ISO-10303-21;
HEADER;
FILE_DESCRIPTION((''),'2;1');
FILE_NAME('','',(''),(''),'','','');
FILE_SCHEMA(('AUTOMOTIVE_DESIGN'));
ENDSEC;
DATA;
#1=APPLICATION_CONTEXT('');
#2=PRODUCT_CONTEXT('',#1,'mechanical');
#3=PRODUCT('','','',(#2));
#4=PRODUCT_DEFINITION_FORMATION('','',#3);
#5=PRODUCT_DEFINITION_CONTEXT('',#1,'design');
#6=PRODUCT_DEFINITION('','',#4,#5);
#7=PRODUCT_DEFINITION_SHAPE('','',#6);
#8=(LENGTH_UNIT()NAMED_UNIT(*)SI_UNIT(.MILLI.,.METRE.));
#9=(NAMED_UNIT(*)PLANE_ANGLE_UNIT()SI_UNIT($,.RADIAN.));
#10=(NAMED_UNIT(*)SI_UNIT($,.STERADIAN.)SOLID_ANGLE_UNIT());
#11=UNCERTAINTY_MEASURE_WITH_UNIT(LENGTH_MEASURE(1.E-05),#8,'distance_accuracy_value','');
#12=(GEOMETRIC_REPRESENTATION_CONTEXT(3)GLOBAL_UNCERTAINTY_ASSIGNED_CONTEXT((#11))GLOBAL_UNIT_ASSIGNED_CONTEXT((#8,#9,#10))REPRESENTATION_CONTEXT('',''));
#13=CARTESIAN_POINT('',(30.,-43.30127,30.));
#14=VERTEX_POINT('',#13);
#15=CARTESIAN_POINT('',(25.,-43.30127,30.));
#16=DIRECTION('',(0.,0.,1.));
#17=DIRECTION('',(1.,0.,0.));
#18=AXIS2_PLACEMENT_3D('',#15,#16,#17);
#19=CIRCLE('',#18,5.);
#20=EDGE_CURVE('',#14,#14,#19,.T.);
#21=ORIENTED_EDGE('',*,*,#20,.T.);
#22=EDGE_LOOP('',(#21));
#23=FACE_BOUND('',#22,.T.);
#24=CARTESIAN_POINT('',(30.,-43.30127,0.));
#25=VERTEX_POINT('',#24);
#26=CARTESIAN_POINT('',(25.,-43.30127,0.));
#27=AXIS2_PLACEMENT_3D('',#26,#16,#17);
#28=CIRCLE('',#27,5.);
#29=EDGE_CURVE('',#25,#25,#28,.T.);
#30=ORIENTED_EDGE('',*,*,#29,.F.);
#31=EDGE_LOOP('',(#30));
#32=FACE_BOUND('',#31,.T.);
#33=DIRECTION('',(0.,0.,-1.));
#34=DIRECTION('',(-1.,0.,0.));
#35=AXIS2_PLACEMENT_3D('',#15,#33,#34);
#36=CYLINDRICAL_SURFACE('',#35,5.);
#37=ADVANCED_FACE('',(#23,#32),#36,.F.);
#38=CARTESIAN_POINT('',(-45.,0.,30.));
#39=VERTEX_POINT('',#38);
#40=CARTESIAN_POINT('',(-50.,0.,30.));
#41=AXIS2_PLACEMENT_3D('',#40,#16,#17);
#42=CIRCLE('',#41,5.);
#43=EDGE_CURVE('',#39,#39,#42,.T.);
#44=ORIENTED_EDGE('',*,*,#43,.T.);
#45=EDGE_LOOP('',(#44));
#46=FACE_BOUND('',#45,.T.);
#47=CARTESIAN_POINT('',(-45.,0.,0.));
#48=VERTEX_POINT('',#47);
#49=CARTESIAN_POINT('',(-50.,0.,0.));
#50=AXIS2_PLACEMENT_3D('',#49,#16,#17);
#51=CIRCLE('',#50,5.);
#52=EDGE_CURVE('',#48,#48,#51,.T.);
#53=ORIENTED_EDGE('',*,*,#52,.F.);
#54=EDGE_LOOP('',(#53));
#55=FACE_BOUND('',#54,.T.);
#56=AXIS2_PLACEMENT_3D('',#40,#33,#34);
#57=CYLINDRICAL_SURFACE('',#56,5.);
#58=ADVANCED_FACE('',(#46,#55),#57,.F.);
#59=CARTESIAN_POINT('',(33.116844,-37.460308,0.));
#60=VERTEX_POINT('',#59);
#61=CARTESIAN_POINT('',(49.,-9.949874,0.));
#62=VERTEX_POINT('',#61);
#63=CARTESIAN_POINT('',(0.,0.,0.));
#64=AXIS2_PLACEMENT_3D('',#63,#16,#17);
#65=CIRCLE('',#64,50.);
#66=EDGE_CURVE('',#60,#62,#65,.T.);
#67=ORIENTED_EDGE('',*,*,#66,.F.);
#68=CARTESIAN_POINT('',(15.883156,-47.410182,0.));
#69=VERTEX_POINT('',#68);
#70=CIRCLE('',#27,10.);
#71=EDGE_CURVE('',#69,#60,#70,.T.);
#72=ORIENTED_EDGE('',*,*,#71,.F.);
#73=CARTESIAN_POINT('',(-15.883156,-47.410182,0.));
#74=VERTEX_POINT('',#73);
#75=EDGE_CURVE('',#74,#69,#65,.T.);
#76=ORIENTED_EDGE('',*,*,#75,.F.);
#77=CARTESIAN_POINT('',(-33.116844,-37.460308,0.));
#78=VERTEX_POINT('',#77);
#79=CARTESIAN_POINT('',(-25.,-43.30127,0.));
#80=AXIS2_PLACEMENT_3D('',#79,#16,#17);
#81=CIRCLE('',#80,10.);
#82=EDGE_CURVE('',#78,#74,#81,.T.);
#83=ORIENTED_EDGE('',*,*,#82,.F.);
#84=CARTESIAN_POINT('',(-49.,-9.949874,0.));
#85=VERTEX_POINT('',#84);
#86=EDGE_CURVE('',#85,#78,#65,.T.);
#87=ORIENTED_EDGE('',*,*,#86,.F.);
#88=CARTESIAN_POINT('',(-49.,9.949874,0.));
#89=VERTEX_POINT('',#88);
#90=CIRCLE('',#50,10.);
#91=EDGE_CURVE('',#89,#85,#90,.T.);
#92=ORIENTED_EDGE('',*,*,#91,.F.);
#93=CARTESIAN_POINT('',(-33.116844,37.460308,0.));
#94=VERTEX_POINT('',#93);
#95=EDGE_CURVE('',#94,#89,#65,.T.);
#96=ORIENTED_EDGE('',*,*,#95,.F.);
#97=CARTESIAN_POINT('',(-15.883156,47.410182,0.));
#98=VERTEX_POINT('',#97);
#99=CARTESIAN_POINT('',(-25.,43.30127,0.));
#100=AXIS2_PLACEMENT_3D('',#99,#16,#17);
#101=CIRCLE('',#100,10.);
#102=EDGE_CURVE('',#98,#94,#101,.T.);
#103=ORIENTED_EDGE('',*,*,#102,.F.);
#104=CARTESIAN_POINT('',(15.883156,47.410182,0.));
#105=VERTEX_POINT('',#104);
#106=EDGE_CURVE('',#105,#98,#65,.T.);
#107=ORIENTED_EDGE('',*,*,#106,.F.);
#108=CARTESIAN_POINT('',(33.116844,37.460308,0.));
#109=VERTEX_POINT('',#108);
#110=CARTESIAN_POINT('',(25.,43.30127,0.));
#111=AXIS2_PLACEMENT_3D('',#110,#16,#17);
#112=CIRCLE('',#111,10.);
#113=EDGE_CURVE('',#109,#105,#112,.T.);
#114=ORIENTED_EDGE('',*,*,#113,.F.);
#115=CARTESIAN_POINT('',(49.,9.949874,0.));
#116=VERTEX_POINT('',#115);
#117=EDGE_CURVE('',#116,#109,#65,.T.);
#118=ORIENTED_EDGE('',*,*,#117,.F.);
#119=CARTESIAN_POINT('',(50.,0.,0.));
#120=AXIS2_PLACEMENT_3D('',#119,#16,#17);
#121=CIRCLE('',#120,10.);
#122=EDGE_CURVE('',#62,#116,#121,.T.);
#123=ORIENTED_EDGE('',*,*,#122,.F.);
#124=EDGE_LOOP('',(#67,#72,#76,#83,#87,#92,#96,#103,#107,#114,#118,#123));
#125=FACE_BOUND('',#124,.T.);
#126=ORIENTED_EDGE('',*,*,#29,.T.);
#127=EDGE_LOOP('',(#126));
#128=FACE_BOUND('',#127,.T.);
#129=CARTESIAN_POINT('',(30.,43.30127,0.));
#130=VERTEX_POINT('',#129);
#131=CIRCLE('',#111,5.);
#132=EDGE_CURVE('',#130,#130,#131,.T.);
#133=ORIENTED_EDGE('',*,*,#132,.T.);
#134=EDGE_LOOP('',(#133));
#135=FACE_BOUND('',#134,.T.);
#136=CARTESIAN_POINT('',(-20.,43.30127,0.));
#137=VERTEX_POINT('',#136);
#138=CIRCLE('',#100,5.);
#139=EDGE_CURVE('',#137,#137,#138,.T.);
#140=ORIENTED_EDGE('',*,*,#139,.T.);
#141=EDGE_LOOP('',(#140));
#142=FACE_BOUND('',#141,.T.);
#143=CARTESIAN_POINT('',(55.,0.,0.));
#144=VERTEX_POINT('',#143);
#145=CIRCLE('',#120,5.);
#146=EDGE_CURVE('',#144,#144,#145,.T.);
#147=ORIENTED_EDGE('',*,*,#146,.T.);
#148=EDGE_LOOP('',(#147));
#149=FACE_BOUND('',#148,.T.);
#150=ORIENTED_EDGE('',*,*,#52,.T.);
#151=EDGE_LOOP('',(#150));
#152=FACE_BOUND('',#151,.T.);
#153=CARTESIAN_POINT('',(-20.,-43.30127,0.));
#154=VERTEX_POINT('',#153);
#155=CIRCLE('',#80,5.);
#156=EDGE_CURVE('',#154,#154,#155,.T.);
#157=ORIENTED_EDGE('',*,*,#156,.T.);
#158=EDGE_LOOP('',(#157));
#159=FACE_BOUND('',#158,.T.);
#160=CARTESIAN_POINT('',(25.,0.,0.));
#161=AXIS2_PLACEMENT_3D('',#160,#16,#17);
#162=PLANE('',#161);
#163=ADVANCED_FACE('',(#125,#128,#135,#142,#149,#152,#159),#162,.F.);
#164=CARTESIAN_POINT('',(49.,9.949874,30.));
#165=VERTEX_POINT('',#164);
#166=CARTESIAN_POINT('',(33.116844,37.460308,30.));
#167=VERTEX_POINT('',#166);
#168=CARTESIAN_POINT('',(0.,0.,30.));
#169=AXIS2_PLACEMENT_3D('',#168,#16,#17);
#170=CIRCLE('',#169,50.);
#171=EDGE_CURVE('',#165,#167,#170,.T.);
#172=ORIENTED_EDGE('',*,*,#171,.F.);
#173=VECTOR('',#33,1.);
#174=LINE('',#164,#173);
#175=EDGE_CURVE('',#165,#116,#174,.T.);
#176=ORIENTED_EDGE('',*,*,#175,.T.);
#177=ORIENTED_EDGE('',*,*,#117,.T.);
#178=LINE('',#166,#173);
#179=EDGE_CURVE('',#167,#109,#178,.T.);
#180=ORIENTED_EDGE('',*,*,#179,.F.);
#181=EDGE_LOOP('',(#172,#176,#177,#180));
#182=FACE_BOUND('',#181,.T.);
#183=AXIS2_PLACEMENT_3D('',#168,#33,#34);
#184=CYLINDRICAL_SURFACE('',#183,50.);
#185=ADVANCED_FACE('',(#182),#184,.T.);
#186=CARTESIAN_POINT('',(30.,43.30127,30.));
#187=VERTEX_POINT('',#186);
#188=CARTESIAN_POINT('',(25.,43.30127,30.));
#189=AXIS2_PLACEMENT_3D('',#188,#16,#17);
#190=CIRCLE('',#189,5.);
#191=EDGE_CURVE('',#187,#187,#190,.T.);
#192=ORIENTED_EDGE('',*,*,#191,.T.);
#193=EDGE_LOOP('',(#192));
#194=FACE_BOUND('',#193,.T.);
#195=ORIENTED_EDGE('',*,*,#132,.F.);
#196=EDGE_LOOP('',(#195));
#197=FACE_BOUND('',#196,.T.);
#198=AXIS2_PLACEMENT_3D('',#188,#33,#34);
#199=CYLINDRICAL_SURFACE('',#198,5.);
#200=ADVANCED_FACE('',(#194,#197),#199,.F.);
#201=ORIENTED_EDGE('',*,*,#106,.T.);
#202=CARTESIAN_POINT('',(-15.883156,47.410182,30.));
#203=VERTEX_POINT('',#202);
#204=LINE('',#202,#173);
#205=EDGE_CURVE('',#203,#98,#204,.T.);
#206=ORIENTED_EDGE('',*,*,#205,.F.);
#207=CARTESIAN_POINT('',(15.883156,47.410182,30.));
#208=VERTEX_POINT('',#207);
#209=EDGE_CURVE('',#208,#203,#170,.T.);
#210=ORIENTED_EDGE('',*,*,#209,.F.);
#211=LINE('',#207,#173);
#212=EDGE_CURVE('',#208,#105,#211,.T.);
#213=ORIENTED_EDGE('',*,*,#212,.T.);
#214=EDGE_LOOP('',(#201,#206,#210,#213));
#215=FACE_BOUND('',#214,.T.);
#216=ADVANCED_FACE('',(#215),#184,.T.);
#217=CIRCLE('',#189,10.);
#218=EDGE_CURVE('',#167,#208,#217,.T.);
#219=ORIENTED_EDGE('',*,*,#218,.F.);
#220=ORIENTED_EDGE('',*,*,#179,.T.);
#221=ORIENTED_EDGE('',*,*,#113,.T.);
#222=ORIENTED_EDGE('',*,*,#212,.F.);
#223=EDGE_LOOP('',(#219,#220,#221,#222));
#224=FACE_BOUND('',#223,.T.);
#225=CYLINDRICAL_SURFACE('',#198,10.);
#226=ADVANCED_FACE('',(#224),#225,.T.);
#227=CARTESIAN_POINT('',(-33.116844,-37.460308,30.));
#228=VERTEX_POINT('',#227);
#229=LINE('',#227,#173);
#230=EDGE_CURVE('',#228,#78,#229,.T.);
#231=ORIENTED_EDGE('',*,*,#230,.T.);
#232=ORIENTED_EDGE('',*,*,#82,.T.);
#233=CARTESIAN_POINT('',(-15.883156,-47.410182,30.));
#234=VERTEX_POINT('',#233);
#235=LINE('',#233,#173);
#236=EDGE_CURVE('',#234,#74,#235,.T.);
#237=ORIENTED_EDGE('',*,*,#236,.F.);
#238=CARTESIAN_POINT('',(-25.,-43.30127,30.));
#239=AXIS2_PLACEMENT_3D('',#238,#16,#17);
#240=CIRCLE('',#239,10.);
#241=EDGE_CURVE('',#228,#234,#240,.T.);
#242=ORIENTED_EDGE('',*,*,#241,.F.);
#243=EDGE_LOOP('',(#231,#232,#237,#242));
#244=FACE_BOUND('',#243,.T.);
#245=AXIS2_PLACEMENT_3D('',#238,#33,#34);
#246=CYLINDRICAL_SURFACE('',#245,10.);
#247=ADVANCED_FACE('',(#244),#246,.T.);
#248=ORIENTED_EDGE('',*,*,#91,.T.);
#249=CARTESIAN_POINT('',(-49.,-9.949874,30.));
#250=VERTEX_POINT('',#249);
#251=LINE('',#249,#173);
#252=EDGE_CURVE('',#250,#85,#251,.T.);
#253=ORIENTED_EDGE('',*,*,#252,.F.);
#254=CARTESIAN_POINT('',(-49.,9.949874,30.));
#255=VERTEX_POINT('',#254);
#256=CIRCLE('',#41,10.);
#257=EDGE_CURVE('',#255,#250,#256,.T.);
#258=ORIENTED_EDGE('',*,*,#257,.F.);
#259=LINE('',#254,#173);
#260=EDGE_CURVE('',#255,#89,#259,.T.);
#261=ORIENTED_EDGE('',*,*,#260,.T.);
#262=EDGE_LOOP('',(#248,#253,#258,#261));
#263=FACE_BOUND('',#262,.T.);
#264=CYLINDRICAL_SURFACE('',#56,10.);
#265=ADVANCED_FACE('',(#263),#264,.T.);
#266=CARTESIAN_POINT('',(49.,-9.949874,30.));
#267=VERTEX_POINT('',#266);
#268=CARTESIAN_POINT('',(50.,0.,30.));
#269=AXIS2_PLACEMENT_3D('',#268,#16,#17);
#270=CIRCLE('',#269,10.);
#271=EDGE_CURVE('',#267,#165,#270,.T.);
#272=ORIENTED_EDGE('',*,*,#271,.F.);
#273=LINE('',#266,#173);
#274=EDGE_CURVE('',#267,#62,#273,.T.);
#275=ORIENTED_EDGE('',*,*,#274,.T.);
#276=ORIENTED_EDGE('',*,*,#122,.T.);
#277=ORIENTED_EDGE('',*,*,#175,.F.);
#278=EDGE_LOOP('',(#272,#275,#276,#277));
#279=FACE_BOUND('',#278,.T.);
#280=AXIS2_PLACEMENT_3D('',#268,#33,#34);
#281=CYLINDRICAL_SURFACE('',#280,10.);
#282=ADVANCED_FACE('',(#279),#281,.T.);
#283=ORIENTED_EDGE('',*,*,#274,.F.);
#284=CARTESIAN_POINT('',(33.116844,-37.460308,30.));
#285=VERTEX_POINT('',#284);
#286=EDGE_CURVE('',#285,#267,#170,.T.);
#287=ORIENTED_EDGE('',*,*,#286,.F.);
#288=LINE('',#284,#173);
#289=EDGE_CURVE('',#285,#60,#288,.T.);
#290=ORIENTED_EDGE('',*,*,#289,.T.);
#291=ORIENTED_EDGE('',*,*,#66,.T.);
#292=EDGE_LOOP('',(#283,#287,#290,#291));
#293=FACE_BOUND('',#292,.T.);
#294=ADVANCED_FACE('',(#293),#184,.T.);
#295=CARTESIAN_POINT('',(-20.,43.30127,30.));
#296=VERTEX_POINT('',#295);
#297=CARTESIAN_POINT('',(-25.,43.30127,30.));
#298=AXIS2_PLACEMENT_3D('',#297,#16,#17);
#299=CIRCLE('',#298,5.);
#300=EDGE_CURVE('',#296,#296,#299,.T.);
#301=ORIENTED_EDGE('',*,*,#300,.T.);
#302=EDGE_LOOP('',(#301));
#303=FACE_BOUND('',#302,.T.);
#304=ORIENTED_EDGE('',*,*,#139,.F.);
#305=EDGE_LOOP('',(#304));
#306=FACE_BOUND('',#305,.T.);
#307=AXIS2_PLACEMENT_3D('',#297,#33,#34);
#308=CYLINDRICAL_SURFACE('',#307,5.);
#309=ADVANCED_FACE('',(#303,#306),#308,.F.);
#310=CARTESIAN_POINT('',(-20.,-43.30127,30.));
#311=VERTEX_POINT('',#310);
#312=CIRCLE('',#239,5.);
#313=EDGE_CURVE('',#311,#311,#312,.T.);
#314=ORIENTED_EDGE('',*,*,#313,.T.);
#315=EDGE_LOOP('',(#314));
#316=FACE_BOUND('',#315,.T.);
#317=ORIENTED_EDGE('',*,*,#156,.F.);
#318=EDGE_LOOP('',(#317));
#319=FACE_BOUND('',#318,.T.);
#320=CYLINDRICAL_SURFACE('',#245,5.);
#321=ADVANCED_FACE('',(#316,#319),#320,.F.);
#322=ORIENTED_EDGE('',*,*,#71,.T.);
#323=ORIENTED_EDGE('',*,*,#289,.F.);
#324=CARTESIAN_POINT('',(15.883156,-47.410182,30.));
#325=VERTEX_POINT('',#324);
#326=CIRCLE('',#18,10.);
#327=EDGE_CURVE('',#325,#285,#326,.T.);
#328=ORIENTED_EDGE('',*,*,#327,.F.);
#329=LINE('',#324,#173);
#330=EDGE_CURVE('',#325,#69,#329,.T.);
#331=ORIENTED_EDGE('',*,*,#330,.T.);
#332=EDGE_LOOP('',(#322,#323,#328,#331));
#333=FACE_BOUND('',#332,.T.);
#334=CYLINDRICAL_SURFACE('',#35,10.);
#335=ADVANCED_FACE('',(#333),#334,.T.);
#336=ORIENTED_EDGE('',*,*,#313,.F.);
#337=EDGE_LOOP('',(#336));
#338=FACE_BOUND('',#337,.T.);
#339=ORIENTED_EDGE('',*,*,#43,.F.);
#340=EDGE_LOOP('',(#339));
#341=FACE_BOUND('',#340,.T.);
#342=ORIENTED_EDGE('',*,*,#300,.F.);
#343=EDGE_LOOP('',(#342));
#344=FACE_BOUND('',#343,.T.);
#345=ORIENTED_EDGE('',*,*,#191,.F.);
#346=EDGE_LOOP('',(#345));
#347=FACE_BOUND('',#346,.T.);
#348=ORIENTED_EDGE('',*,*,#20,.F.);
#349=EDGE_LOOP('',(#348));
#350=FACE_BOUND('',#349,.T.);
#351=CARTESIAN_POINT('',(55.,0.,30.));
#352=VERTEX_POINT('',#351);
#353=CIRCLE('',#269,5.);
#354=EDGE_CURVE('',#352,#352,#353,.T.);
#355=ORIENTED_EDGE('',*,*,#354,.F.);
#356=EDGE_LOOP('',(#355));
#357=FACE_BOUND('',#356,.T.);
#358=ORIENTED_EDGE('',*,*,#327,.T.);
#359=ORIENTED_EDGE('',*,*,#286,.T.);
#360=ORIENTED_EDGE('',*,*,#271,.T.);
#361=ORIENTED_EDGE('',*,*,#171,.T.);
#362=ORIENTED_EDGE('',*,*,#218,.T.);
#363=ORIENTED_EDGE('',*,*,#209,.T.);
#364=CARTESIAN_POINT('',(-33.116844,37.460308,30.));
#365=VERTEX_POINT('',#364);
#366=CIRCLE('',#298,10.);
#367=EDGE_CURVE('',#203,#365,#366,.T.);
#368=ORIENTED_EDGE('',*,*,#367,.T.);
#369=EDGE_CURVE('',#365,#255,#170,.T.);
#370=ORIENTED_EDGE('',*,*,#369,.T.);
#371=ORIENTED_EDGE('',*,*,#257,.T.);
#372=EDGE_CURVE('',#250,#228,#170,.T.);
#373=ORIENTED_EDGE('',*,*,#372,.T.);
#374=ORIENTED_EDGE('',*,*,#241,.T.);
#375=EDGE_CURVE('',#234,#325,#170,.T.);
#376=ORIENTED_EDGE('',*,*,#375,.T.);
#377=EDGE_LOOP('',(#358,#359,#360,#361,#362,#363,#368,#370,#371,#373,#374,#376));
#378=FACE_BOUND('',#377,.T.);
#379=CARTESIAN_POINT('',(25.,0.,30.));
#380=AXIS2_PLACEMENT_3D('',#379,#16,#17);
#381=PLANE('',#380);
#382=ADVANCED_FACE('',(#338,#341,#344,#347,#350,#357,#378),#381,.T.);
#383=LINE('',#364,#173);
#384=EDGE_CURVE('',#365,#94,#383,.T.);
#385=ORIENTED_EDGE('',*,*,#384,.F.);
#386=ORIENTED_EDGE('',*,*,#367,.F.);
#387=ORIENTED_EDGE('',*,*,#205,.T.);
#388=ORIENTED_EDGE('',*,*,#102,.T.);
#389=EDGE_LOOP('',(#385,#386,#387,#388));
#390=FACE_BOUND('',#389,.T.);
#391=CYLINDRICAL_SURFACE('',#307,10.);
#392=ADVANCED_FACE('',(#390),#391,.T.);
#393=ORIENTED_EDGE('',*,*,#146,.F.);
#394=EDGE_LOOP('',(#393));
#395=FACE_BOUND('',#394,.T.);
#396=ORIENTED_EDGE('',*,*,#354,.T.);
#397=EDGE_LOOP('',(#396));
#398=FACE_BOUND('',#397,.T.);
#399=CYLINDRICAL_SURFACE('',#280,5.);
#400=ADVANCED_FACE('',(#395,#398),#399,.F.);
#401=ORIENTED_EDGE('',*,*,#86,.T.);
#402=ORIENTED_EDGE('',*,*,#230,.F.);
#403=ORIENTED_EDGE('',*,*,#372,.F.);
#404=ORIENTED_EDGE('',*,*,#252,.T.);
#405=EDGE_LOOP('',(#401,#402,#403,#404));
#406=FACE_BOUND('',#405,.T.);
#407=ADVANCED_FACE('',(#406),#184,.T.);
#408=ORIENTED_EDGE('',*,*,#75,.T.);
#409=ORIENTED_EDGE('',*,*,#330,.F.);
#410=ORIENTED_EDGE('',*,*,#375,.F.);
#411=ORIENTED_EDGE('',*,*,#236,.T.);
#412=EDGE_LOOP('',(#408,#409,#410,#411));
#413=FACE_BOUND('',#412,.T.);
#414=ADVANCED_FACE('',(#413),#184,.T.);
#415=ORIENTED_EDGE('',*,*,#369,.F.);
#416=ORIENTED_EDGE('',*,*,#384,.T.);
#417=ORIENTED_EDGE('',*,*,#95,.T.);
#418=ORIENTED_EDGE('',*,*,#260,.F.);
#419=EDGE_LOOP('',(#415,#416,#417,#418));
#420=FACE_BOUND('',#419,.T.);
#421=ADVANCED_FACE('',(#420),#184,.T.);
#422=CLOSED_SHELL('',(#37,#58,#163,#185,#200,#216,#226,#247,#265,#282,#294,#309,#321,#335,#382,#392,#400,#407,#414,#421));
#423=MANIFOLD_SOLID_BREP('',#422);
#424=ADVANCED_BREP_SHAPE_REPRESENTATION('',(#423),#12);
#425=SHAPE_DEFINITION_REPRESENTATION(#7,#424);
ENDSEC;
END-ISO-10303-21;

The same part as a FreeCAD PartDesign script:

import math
import FreeCAD as App
import Part
import Sketcher

V = App.Vector

doc = App.newDocument("Part")
body = doc.addObject("PartDesign::Body", "Body")

sketch1 = body.newObject("Sketcher::SketchObject", "Sketch")
sketch1.AttachmentSupport = (doc.getObject("XY_Plane"), [""])
sketch1.MapMode = "FlatFace"
sketch1.addGeometry(Part.ArcOfCircle(Part.Circle(V(0, 0, 0), V(0, 0, 1), 50), math.radians(11.478341), math.radians(48.521659)), False)
sketch1.addGeometry(Part.ArcOfCircle(Part.Circle(V(25, 43.30127, 0), V(0, 0, 1), 10), math.radians(-35.73917), math.radians(155.73917)), False)
sketch1.addGeometry(Part.ArcOfCircle(Part.Circle(V(0, 0, 0), V(0, 0, 1), 50), math.radians(71.478341), math.radians(108.521659)), False)
sketch1.addGeometry(Part.ArcOfCircle(Part.Circle(V(-25, 43.30127, 0), V(0, 0, 1), 10), math.radians(24.26083), math.radians(215.73917)), False)
sketch1.addGeometry(Part.ArcOfCircle(Part.Circle(V(0, 0, 0), V(0, 0, 1), 50), math.radians(131.478341), math.radians(168.521659)), False)
sketch1.addGeometry(Part.ArcOfCircle(Part.Circle(V(-50, 0, 0), V(0, 0, 1), 10), math.radians(84.26083), math.radians(275.73917)), False)
sketch1.addGeometry(Part.ArcOfCircle(Part.Circle(V(0, 0, 0), V(0, 0, 1), 50), math.radians(-168.521659), math.radians(-131.478341)), False)
sketch1.addGeometry(Part.ArcOfCircle(Part.Circle(V(-25, -43.30127, 0), V(0, 0, 1), 10), math.radians(144.26083), math.radians(335.73917)), False)
sketch1.addGeometry(Part.ArcOfCircle(Part.Circle(V(0, 0, 0), V(0, 0, 1), 50), math.radians(-108.521659), math.radians(-71.478341)), False)
sketch1.addGeometry(Part.ArcOfCircle(Part.Circle(V(25, -43.30127, 0), V(0, 0, 1), 10), math.radians(-155.73917), math.radians(35.73917)), False)
sketch1.addGeometry(Part.ArcOfCircle(Part.Circle(V(0, 0, 0), V(0, 0, 1), 50), math.radians(-48.521659), math.radians(-11.478341)), False)
sketch1.addGeometry(Part.ArcOfCircle(Part.Circle(V(50, 0, 0), V(0, 0, 1), 10), math.radians(-95.73917), math.radians(95.73917)), False)
sketch1.addGeometry(Part.Circle(V(-25, -43.30127, 0), V(0, 0, 1), 5), False)
sketch1.addGeometry(Part.Circle(V(-50, 0, 0), V(0, 0, 1), 5), False)
sketch1.addGeometry(Part.Circle(V(25, -43.30127, 0), V(0, 0, 1), 5), False)
sketch1.addGeometry(Part.Circle(V(50, 0, 0), V(0, 0, 1), 5), False)
sketch1.addGeometry(Part.Circle(V(-25, 43.30127, 0), V(0, 0, 1), 5), False)
sketch1.addGeometry(Part.Circle(V(25, 43.30127, 0), V(0, 0, 1), 5), False)
sketch1.addConstraint(Sketcher.Constraint("Coincident", 0, 2, 1, 1))
sketch1.addConstraint(Sketcher.Constraint("Coincident", 1, 2, 2, 1))
sketch1.addConstraint(Sketcher.Constraint("Coincident", 2, 2, 3, 1))
sketch1.addConstraint(Sketcher.Constraint("Coincident", 3, 2, 4, 1))
sketch1.addConstraint(Sketcher.Constraint("Coincident", 4, 2, 5, 1))
sketch1.addConstraint(Sketcher.Constraint("Coincident", 5, 2, 6, 1))
sketch1.addConstraint(Sketcher.Constraint("Coincident", 6, 2, 7, 1))
sketch1.addConstraint(Sketcher.Constraint("Coincident", 7, 2, 8, 1))
sketch1.addConstraint(Sketcher.Constraint("Coincident", 8, 2, 9, 1))
sketch1.addConstraint(Sketcher.Constraint("Coincident", 9, 2, 10, 1))
sketch1.addConstraint(Sketcher.Constraint("Coincident", 10, 2, 11, 1))
sketch1.addConstraint(Sketcher.Constraint("Coincident", 11, 2, 0, 1))
sketch1.addConstraint(Sketcher.Constraint("Coincident", 0, 3, -1, 1))
sketch1.addConstraint(Sketcher.Constraint("Coincident", 2, 3, -1, 1))
sketch1.addConstraint(Sketcher.Constraint("Coincident", 4, 3, -1, 1))
sketch1.addConstraint(Sketcher.Constraint("Coincident", 6, 3, -1, 1))
sketch1.addConstraint(Sketcher.Constraint("Coincident", 8, 3, -1, 1))
sketch1.addConstraint(Sketcher.Constraint("Coincident", 10, 3, -1, 1))
sketch1.addConstraint(Sketcher.Constraint("Coincident", 12, 3, 7, 3))
sketch1.addConstraint(Sketcher.Constraint("Coincident", 13, 3, 5, 3))
sketch1.addConstraint(Sketcher.Constraint("Coincident", 14, 3, 9, 3))
sketch1.addConstraint(Sketcher.Constraint("Coincident", 15, 3, 11, 3))
sketch1.addConstraint(Sketcher.Constraint("Coincident", 16, 3, 3, 3))
sketch1.addConstraint(Sketcher.Constraint("Coincident", 17, 3, 1, 3))
sketch1.addConstraint(Sketcher.Constraint("Equal", 0, 2))
sketch1.addConstraint(Sketcher.Constraint("Equal", 1, 3))
sketch1.addConstraint(Sketcher.Constraint("Equal", 2, 4))
sketch1.addConstraint(Sketcher.Constraint("Equal", 3, 5))
sketch1.addConstraint(Sketcher.Constraint("Equal", 4, 6))
sketch1.addConstraint(Sketcher.Constraint("Equal", 5, 7))
sketch1.addConstraint(Sketcher.Constraint("Equal", 6, 8))
sketch1.addConstraint(Sketcher.Constraint("Equal", 7, 9))
sketch1.addConstraint(Sketcher.Constraint("Equal", 8, 10))
sketch1.addConstraint(Sketcher.Constraint("Equal", 9, 11))
sketch1.addConstraint(Sketcher.Constraint("Equal", 12, 13))
sketch1.addConstraint(Sketcher.Constraint("Equal", 13, 14))
sketch1.addConstraint(Sketcher.Constraint("Equal", 14, 15))
sketch1.addConstraint(Sketcher.Constraint("Equal", 15, 16))
sketch1.addConstraint(Sketcher.Constraint("Equal", 16, 17))
sketch1.addConstraint(Sketcher.Constraint("Symmetric", 1, 3, 7, 3, -1, 1))
sketch1.addConstraint(Sketcher.Constraint("Symmetric", 3, 3, 9, 3, -1, 1))
sketch1.addConstraint(Sketcher.Constraint("Symmetric", 5, 3, 11, 3, -1, 1))
sketch1.addConstraint(Sketcher.Constraint("Symmetric", 1, 3, 3, 3, -2))
sketch1.addConstraint(Sketcher.Constraint("PointOnObject", 5, 3, -1))
sketch1.addConstraint(Sketcher.Constraint("Diameter", 12, 10.0))
sketch1.addConstraint(Sketcher.Constraint("Radius", 0, 50.0))
sketch1.addConstraint(Sketcher.Constraint("Radius", 1, 10.0))
sketch1.addConstraint(Sketcher.Constraint("DistanceX", -1, 1, 1, 3, 25.0))
sketch1.addConstraint(Sketcher.Constraint("DistanceX", 5, 3, -1, 1, 50.0))
sketch1.addConstraint(Sketcher.Constraint("DistanceY", -1, 1, 1, 3, 43.30127))
pad1 = body.newObject("PartDesign::Pad", "Pad")
pad1.Profile = sketch1
pad1.Length = 30

doc.recompute()
